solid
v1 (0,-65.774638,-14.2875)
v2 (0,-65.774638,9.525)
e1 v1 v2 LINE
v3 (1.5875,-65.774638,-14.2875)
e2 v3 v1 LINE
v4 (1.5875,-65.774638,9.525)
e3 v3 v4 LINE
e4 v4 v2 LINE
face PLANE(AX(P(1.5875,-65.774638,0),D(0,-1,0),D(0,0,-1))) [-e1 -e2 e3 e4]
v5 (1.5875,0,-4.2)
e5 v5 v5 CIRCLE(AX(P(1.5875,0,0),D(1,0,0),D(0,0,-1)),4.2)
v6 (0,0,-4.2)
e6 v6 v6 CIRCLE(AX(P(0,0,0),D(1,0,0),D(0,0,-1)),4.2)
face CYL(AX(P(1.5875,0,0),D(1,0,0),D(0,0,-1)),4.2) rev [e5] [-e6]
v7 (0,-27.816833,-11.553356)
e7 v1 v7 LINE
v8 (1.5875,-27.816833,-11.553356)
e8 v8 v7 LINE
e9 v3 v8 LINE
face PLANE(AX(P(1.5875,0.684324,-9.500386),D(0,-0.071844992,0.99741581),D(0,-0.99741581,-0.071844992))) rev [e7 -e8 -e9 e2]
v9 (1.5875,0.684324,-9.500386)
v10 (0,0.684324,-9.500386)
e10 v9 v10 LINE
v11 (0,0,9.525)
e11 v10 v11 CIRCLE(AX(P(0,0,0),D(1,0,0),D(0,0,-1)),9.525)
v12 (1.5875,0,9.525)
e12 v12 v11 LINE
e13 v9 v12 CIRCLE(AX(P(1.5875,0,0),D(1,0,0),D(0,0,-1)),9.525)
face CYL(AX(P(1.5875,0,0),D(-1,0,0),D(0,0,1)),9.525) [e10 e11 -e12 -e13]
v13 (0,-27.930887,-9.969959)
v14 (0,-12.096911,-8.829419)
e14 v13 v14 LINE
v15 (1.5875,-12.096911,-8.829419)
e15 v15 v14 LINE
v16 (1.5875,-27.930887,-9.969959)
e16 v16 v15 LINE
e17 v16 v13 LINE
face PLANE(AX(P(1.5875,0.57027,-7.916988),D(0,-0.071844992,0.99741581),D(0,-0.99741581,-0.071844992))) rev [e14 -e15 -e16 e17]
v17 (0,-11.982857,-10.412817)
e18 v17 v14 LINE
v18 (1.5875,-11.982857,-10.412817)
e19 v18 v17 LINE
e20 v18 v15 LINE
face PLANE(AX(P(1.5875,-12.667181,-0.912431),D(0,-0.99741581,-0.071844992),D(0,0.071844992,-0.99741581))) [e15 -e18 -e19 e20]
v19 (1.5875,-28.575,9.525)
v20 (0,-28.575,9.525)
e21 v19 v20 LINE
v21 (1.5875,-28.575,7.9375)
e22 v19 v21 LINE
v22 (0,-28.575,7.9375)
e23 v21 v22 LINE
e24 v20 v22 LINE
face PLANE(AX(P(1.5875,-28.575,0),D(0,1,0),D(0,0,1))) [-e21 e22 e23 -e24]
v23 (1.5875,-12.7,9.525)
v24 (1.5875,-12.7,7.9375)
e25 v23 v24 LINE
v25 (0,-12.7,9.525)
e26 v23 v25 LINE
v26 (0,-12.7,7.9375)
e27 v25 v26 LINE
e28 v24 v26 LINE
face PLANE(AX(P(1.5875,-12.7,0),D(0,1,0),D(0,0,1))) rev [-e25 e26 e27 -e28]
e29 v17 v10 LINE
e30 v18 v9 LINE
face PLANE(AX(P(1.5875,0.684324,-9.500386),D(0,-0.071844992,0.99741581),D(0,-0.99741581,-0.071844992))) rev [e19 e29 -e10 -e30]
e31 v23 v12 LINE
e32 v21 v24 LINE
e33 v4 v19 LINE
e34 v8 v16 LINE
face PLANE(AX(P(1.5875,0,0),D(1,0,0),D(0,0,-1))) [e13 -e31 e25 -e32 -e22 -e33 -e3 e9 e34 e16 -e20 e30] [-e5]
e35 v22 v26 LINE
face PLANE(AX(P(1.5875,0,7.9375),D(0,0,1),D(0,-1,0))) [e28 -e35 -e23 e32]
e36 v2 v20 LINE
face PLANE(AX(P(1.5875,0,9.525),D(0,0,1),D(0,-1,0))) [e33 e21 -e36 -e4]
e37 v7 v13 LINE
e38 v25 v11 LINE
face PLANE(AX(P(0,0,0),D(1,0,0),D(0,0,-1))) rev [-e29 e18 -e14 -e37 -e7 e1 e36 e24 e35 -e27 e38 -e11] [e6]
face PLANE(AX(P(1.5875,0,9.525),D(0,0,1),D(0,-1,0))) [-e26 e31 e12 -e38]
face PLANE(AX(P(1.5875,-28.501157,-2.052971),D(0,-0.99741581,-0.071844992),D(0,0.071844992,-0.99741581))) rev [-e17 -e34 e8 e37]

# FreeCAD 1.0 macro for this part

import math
import FreeCAD as App
import Part
import Sketcher
from FreeCAD import Vector
Q = App.Units.Quantity

doc = App.newDocument("Part")
params = doc.addObject("Spreadsheet::Sheet", "Params")
for row, (alias, value) in enumerate([
    ("sketch1_width", "0.5 in"),
    ("sketch1_radius", "0.375 in"),
    ("sketch1_length", "0.5 in"),
    ("sketch1_width2", "0.625 in"),
    ("sketch1_height", "0.9375 in"),
    ("pad1_length", "0.0625 in"),
    ("hole_diameter", "8.4 mm"),
], start=1):
    params.set(f"A{row}", alias)
    params.set(f"B{row}", "=" + value)
    params.setAlias(f"B{row}", alias)

body = doc.addObject("PartDesign::Body", "Body")

# Sketch on YZ plane
sketch1 = body.newObject("Sketcher::SketchObject", "Sketch")
sketch1.AttachmentSupport = (doc.getObject("YZ_Plane"), [""])
sketch1.MapMode = "FlatFace"
sketch1.addGeometry([
    Part.LineSegment(Vector(-65.8, 9.5, 0), Vector(-65.8, -14.3, 0)),  # 0
    Part.LineSegment(Vector(-65.8, -14.3, 0), Vector(-27.8, -11.6, 0)),  # 1
    Part.LineSegment(Vector(-27.8, -11.6, 0), Vector(-27.9, -10, 0)),  # 2
    Part.LineSegment(Vector(-27.9, -10, 0), Vector(-12.1, -8.8, 0)),  # 3
    Part.LineSegment(Vector(-12.1, -8.8, 0), Vector(-12, -10.4, 0)),  # 4
    Part.LineSegment(Vector(-12, -10.4, 0), Vector(0.7, -9.5, 0)),  # 5
    Part.ArcOfCircle(Part.Circle(Vector(0, 0, 0), Vector(0, 0, 1), 9.5), math.radians(-86), math.radians(90)),  # 6
    Part.LineSegment(Vector(0, 9.5, 0), Vector(-12.7, 9.5, 0)),  # 7
    Part.LineSegment(Vector(-12.7, 9.5, 0), Vector(-12.7, 7.9, 0)),  # 8
    Part.LineSegment(Vector(-12.7, 7.9, 0), Vector(-28.6, 7.9, 0)),  # 9
    Part.LineSegment(Vector(-28.6, 7.9, 0), Vector(-28.6, 9.5, 0)),  # 10
    Part.LineSegment(Vector(-28.6, 9.5, 0), Vector(-65.8, 9.5, 0)),  # 11
], False)
sketch1.addConstraint([
    Sketcher.Constraint("Coincident", 0, 2, 1, 1),
    Sketcher.Constraint("Coincident", 1, 2, 2, 1),
    Sketcher.Constraint("Coincident", 2, 2, 3, 1),
    Sketcher.Constraint("Coincident", 3, 2, 4, 1),
    Sketcher.Constraint("Coincident", 4, 2, 5, 1),
    Sketcher.Constraint("Tangent", 5, 2, 6, 1),
    Sketcher.Constraint("Tangent", 6, 2, 7, 1),
    Sketcher.Constraint("Coincident", 7, 2, 8, 1),
    Sketcher.Constraint("Coincident", 8, 2, 9, 1),
    Sketcher.Constraint("Coincident", 9, 2, 10, 1),
    Sketcher.Constraint("Coincident", 10, 2, 11, 1),
    Sketcher.Constraint("Coincident", 11, 2, 0, 1),
    Sketcher.Constraint("Vertical", 0),
    Sketcher.Constraint("Horizontal", 7),
    Sketcher.Constraint("Vertical", 8),
    Sketcher.Constraint("Horizontal", 9),
    Sketcher.Constraint("Vertical", 10),
    Sketcher.Constraint("Horizontal", 11),
    Sketcher.Constraint("Coincident", 6, 3, -1, 1),
    Sketcher.Constraint("Perpendicular", 1, 2),
    Sketcher.Constraint("Perpendicular", 2, 3),
    Sketcher.Constraint("Perpendicular", 3, 4),
    Sketcher.Constraint("Perpendicular", 4, 5),
    Sketcher.Constraint("Horizontal", 7, 2, 10, 2),
    Sketcher.Constraint("Equal", 2, 4),
    Sketcher.Constraint("DistanceX", 7, 2, 7, 1, Q("0.5 in")),
    Sketcher.Constraint("Radius", 6, Q("0.375 in")),
    Sketcher.Constraint("Distance", 5, Q("0.5 in")),
    Sketcher.Constraint("DistanceX", 9, 2, 9, 1, Q("0.625 in")),
    Sketcher.Constraint("DistanceY", 0, 2, 0, 1, Q("0.9375 in")),
    Sketcher.Constraint("DistanceY", 8, 2, 8, 1, Q("0.0625 in")),
    Sketcher.Constraint("Distance", 2, Q("0.0625 in")),
    Sketcher.Constraint("Distance", 3, Q("0.625 in")),
    Sketcher.Constraint("DistanceX", 11, 2, 11, 1, Q("37.199638 mm")),
])
sketch1.setExpression("Constraints[25]", "Params.sketch1_width")
sketch1.setExpression("Constraints[26]", "Params.sketch1_radius")
sketch1.setExpression("Constraints[27]", "Params.sketch1_length")
sketch1.setExpression("Constraints[28]", "Params.sketch1_width2")
sketch1.setExpression("Constraints[29]", "Params.sketch1_height")
pad1 = body.newObject("PartDesign::Pad", "Pad")
pad1.Profile = sketch1
pad1.setExpression("Length", "Params.pad1_length")

# Sketch on YZ plane
sketch2 = body.newObject("Sketcher::SketchObject", "Sketch001")
sketch2.AttachmentSupport = (doc.getObject("YZ_Plane"), [""])
sketch2.MapMode = "FlatFace"
sketch2.AttachmentOffset = App.Placement(Vector(0, 0, 0.0625 * 25.4), App.Rotation())
sketch2.addGeometry(Part.Circle(Vector(0, 0, 0), Vector(0, 0, 1), 4.2), False)
sketch2.addConstraint([
    Sketcher.Constraint("Coincident", 0, 3, -1, 1),
    Sketcher.Constraint("Diameter", 0, Q("8.4 mm")),
])
doc.recompute()
hole = body.newObject("PartDesign::Hole", "Hole")
hole.Profile = sketch2
hole.ThreadType = "None"
hole.setExpression("Diameter", "Params.hole_diameter")
hole.DepthType = "ThroughAll"

doc.recompute()
